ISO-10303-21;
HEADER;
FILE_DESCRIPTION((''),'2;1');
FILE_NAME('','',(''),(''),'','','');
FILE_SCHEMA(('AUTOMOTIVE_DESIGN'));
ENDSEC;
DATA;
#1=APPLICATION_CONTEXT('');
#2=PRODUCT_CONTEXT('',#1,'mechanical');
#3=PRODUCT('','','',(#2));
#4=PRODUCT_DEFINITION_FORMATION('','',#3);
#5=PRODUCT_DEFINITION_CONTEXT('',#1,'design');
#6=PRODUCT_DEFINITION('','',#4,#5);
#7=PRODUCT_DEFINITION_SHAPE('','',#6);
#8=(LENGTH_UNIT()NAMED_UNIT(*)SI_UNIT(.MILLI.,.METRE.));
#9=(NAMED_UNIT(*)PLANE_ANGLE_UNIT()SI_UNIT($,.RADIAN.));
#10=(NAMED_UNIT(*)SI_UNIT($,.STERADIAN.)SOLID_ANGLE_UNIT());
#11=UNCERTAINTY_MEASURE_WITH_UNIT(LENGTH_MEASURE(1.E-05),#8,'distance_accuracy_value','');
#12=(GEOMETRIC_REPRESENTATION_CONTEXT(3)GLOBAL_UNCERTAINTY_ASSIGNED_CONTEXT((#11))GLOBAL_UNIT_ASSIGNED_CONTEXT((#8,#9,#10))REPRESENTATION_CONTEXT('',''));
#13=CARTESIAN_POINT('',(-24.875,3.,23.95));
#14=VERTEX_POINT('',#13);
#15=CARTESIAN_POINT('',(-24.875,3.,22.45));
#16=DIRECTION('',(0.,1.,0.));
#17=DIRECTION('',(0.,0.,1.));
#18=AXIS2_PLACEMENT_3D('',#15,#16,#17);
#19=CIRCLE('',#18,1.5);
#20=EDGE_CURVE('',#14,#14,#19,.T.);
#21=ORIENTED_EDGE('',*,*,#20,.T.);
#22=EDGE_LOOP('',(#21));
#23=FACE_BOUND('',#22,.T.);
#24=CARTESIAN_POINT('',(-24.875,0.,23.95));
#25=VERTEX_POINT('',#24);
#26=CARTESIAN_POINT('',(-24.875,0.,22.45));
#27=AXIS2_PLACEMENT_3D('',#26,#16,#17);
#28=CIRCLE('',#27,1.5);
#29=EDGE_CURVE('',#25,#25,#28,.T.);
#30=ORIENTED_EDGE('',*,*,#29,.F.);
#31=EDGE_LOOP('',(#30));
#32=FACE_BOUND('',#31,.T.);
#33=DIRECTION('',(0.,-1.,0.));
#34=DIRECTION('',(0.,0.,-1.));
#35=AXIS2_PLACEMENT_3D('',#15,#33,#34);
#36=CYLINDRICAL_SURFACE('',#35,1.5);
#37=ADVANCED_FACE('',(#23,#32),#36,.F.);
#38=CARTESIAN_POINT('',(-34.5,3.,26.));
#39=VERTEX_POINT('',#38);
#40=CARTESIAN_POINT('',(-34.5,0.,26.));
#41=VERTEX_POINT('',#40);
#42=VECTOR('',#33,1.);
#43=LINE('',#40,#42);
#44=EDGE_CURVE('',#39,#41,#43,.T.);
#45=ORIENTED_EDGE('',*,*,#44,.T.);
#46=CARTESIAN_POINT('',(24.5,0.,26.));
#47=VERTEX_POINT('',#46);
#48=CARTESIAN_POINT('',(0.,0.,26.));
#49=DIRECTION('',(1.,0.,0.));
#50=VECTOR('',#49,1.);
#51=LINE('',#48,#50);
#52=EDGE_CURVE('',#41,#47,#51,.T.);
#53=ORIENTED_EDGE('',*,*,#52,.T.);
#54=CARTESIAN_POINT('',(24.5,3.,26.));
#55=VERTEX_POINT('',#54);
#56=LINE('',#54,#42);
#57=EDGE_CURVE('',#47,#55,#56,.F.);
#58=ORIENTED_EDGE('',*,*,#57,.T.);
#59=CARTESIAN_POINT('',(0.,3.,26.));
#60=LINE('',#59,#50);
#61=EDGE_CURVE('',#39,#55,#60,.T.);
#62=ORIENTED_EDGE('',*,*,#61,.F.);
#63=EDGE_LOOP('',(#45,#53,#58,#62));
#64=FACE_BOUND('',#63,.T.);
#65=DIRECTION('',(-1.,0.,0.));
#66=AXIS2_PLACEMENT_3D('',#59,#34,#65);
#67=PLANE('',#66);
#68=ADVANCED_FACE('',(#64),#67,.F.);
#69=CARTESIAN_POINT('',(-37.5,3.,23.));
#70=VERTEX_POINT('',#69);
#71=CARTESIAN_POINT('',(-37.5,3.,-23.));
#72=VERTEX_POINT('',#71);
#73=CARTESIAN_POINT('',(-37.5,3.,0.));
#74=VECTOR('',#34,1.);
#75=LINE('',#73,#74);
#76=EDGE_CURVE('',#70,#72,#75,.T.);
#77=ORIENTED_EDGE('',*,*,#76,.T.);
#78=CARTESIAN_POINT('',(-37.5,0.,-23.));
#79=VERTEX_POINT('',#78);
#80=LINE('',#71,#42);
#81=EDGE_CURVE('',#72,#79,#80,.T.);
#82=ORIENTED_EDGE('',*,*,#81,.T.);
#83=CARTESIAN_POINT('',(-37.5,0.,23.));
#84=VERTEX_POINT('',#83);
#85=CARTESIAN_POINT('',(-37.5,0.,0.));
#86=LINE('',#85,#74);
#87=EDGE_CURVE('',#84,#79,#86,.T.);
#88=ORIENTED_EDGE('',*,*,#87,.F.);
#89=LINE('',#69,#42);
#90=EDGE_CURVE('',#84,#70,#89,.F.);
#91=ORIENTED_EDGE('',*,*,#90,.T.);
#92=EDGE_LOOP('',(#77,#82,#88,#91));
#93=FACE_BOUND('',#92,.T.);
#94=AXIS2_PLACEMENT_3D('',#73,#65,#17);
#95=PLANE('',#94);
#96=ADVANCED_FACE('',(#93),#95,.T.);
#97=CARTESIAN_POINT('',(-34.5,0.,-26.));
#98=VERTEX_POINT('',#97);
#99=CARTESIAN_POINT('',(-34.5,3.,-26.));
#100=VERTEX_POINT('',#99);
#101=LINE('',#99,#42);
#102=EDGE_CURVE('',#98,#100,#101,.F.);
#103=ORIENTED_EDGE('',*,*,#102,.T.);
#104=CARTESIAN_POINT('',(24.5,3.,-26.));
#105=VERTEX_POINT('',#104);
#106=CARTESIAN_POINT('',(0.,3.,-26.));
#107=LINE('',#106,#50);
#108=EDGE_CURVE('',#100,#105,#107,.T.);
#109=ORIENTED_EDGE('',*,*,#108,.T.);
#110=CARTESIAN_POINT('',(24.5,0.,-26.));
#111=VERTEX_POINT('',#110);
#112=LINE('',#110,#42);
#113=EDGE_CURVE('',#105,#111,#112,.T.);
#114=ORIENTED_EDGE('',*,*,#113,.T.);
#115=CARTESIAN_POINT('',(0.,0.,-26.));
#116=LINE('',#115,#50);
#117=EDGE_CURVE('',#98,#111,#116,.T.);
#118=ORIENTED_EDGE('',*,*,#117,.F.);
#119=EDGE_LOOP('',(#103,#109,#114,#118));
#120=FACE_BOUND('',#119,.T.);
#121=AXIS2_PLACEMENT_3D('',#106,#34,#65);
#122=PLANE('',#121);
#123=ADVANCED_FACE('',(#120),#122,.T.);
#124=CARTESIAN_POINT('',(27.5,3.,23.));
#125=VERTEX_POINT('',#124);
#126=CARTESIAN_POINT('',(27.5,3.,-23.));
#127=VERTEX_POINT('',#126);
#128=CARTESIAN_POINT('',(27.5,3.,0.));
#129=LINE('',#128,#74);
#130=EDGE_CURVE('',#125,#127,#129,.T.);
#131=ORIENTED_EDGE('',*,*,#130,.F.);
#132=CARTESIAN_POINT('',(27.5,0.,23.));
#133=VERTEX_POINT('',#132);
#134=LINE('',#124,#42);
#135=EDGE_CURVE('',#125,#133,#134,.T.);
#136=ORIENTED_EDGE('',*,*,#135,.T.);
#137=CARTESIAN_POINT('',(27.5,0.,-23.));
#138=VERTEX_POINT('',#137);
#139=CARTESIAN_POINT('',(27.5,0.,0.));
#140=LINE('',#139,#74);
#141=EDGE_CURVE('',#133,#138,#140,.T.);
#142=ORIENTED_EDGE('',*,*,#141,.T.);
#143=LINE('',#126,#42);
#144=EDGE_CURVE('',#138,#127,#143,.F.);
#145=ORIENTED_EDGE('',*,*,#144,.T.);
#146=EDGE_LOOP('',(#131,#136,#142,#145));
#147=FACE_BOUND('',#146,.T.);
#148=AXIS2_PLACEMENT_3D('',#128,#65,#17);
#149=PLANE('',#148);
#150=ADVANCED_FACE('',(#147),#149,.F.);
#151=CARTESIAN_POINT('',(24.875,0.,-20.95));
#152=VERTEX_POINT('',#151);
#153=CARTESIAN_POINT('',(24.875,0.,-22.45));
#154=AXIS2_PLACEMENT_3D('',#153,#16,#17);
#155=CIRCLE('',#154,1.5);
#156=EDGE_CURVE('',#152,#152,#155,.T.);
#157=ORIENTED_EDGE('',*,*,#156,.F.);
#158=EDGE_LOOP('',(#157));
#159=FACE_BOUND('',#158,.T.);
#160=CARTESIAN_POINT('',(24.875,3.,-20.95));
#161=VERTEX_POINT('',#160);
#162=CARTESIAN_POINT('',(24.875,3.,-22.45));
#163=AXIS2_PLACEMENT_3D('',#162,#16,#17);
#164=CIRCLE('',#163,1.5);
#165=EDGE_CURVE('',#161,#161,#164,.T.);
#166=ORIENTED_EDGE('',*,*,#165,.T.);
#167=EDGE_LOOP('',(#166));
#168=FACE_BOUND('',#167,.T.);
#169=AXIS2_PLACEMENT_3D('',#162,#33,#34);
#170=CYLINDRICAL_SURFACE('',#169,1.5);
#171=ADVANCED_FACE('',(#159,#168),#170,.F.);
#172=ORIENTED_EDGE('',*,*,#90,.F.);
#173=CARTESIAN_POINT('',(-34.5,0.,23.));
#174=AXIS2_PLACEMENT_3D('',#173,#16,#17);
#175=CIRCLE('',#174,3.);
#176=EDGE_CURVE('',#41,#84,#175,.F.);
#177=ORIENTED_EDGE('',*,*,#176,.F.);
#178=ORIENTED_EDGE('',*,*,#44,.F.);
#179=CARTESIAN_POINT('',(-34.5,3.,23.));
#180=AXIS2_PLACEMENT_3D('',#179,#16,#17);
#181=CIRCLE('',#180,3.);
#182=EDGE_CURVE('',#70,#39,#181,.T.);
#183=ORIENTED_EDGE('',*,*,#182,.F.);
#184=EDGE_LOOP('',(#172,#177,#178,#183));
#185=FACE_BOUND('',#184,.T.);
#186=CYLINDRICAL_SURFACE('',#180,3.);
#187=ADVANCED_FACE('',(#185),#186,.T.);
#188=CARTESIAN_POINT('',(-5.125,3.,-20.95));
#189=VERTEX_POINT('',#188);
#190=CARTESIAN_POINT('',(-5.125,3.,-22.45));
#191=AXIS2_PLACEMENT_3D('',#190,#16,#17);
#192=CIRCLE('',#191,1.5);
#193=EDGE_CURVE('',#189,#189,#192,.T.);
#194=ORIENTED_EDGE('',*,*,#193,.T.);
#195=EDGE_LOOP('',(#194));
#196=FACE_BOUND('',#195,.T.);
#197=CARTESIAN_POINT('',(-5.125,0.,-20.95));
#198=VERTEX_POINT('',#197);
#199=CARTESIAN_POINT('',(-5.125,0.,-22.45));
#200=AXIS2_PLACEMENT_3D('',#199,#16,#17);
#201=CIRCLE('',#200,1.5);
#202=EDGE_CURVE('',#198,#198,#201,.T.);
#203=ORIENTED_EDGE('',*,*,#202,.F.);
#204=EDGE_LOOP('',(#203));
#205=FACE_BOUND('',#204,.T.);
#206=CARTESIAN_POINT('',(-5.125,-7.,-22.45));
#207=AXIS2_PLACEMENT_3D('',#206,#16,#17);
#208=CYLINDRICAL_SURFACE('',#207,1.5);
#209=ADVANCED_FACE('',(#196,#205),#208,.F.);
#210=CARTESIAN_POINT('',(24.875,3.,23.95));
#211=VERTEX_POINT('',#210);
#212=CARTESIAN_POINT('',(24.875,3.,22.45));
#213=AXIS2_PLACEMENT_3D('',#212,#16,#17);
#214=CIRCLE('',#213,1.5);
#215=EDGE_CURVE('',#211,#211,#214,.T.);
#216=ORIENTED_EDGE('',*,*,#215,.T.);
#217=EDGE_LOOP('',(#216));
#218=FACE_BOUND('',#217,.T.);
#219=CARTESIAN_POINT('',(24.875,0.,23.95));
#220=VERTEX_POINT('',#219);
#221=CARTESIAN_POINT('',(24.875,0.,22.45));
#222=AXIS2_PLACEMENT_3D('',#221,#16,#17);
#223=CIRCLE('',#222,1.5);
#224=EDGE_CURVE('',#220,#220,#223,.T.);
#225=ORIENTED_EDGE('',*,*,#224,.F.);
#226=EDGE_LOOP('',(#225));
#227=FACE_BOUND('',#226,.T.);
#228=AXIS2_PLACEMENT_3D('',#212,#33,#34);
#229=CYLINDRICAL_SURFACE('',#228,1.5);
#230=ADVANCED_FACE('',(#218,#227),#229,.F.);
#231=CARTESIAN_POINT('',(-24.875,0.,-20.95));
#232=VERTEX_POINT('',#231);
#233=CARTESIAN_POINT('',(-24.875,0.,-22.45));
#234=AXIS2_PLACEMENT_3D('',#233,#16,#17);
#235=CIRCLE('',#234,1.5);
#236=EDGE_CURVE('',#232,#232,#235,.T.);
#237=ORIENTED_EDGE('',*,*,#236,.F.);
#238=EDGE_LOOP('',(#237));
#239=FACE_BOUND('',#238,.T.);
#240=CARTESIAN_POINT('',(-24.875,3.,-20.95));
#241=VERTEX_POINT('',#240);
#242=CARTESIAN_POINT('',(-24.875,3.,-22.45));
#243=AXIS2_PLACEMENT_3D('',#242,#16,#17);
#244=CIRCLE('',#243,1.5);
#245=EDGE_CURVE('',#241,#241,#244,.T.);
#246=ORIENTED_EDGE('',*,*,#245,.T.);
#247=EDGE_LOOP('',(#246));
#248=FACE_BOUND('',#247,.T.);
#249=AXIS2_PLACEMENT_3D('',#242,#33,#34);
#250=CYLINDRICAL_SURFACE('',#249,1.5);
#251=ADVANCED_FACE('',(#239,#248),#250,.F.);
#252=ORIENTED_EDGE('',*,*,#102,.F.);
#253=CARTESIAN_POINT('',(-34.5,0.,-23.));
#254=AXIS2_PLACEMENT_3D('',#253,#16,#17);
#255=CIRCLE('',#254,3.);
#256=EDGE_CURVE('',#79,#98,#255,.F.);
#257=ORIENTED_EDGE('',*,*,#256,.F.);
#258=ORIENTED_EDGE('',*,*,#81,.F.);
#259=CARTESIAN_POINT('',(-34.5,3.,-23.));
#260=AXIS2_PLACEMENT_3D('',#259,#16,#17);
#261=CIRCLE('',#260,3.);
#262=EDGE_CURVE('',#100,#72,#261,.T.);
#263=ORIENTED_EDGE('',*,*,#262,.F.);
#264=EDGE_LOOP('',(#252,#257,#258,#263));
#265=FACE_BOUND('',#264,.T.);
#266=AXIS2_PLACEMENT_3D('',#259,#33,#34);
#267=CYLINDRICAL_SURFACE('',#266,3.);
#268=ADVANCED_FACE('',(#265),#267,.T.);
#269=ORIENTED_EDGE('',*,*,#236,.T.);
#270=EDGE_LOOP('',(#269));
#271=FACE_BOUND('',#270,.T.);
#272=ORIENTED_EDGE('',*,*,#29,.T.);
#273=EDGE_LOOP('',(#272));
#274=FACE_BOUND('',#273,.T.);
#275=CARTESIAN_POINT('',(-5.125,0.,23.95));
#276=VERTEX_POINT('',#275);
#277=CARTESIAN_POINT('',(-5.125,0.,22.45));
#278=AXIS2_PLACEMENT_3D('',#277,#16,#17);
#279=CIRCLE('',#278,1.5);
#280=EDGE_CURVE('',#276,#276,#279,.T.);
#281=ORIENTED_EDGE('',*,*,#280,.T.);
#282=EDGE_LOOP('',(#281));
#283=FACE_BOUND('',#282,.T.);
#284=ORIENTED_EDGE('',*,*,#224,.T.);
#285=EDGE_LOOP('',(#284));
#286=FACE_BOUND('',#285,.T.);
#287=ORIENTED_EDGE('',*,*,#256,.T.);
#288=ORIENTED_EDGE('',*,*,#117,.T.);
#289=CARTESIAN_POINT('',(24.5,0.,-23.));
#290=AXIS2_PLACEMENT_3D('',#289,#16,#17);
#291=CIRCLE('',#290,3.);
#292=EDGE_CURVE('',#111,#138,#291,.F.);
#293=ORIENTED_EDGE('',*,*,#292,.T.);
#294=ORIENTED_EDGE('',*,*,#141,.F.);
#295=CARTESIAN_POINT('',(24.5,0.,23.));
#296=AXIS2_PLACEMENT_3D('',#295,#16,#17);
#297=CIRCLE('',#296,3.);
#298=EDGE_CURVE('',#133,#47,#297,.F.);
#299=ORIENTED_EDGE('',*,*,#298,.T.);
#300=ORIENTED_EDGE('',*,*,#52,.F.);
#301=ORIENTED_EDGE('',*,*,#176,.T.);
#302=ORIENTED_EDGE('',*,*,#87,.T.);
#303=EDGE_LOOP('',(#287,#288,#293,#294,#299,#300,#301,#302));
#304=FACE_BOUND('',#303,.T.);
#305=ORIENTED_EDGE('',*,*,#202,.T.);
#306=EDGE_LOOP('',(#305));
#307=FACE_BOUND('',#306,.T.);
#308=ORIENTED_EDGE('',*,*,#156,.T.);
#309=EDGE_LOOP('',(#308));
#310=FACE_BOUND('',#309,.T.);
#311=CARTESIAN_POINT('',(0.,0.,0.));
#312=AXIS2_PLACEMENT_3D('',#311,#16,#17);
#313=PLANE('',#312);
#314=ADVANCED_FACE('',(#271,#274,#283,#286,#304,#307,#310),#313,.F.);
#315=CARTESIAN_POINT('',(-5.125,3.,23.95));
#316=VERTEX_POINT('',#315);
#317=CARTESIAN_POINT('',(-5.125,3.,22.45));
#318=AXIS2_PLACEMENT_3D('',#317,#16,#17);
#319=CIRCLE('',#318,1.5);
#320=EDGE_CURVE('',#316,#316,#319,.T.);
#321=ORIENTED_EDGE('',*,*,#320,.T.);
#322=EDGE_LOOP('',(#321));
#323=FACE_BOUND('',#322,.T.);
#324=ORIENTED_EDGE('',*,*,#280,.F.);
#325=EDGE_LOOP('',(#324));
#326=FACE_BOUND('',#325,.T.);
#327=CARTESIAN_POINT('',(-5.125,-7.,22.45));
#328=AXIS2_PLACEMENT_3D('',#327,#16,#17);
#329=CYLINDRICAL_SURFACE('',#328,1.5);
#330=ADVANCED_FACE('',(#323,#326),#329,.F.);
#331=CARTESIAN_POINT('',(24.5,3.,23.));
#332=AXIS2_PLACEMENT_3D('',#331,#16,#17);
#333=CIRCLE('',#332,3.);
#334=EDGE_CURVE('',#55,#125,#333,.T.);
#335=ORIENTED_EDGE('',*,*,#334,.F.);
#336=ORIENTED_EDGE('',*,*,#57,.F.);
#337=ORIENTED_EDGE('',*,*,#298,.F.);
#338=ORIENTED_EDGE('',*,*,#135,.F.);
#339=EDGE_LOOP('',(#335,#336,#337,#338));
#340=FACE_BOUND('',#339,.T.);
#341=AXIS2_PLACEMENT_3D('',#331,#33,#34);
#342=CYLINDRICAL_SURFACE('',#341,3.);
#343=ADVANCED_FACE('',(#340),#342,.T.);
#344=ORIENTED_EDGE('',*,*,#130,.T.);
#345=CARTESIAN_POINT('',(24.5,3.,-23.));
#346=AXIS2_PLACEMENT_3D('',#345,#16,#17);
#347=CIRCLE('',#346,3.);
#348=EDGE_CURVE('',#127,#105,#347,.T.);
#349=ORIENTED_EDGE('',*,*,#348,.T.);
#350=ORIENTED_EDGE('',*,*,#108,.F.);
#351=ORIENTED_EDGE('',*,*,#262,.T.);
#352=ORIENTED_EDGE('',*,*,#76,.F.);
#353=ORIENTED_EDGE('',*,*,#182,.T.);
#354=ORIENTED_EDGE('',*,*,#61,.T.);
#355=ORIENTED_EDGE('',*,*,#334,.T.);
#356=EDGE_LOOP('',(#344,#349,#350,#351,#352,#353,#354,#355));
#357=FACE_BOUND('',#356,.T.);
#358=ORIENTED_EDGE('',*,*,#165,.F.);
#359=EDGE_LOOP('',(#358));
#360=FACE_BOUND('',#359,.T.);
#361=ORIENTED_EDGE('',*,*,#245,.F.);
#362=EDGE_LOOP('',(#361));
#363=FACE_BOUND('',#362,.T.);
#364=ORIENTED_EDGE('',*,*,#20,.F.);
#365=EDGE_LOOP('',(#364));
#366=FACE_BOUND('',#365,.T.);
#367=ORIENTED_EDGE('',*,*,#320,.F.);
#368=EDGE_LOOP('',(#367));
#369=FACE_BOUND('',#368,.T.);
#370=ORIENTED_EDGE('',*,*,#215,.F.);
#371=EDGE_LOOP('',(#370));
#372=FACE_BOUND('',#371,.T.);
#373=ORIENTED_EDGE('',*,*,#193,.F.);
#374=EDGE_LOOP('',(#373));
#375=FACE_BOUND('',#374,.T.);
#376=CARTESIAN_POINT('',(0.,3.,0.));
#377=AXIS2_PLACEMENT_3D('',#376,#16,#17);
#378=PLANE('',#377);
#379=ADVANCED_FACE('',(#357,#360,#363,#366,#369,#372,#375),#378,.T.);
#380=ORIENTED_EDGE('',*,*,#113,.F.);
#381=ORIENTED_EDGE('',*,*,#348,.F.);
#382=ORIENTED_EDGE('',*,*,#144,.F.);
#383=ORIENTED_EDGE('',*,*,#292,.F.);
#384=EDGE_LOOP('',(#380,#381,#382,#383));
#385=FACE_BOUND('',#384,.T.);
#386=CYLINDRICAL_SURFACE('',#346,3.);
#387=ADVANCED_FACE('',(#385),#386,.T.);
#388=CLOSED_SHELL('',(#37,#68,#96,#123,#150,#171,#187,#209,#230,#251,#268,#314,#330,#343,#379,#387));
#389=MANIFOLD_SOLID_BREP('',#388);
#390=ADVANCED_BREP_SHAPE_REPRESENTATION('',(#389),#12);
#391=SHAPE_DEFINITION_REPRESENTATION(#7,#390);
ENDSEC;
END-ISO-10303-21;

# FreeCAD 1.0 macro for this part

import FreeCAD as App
import Part
import Sketcher

V = App.Vector
Q = App.Units.Quantity


def edges_at(feature, points):
    """Names of the edges that pass closest to the given points."""
    edges = feature.Shape.Edges
    near = lambda p: min(range(len(edges)), key=lambda i: edges[i].distToShape(Part.Vertex(*p))[0])
    return sorted({f"Edge{near(p) + 1}" for p in points})

doc = App.newDocument("Part")
body = doc.addObject("PartDesign::Body", "Body")

sketch1 = body.newObject("Sketcher::SketchObject", "Sketch")
sketch1.AttachmentSupport = (doc.getObject("XZ_Plane"), [""])
sketch1.MapMode = "FlatFace"
sketch1.addGeometry([
    Part.LineSegment(V(-37.5, -26, 0), V(-37.5, 26, 0)),
    Part.LineSegment(V(-37.5, 26, 0), V(27.5, 26, 0)),
    Part.LineSegment(V(27.5, 26, 0), V(27.5, -26, 0)),
    Part.LineSegment(V(27.5, -26, 0), V(-37.5, -26, 0)),
    Part.Circle(V(-24.9, 22.4, 0), V(0, 0, 1), 1.5),
    Part.Circle(V(24.9, 22.4, 0), V(0, 0, 1), 1.5),
    Part.Circle(V(-24.9, -22.4, 0), V(0, 0, 1), 1.5),
    Part.Circle(V(24.9, -22.4, 0), V(0, 0, 1), 1.5),
], False)
sketch1.addConstraint([
    Sketcher.Constraint("Coincident", 0, 2, 1, 1),
    Sketcher.Constraint("Coincident", 1, 2, 2, 1),
    Sketcher.Constraint("Coincident", 2, 2, 3, 1),
    Sketcher.Constraint("Coincident", 3, 2, 0, 1),
    Sketcher.Constraint("Vertical", 0),
    Sketcher.Constraint("Horizontal", 1),
    Sketcher.Constraint("Vertical", 2),
    Sketcher.Constraint("Horizontal", 3),
    Sketcher.Constraint("Equal", 4, 5),
    Sketcher.Constraint("Equal", 5, 6),
    Sketcher.Constraint("Equal", 6, 7),
    Sketcher.Constraint("Symmetric", 5, 3, 6, 3, -1, 1),
    Sketcher.Constraint("Symmetric", 4, 3, 7, 3, -1, 1),
    Sketcher.Constraint("Symmetric", 4, 3, 5, 3, -2),
    Sketcher.Constraint("Diameter", 4, Q("3 mm")),
    Sketcher.Constraint("DistanceX", 1, 1, 1, 2, Q("65 mm")),
    Sketcher.Constraint("DistanceY", 0, 1, 0, 2, Q("52 mm")),
    Sketcher.Constraint("DistanceY", -1, 1, 0, 2, Q("26 mm")),
    Sketcher.Constraint("DistanceX", 0, 2, -1, 1, Q("37.5 mm")),
    Sketcher.Constraint("DistanceY", 6, 3, 4, 3, Q("44.9 mm")),
    Sketcher.Constraint("DistanceX", 4, 3, 5, 3, Q("49.75 mm")),
])
pad1 = body.newObject("PartDesign::Pad", "Pad")
pad1.Profile = sketch1
pad1.Length = 3
pad1.Reversed = True
doc.recompute()

fillet = body.newObject("PartDesign::Fillet", "Fillet")
fillet.Base = (pad1, edges_at(pad1, [
    (-37.5, 1.5, 26),
    (-37.5, 1.5, -26),
    (27.5, 1.5, -26),
    (27.5, 1.5, 26),
]))
fillet.Radius = 3

sketch2 = body.newObject("Sketcher::SketchObject", "Sketch001")
sketch2.AttachmentSupport = (doc.getObject("XZ_Plane"), [""])
sketch2.MapMode = "FlatFace"
sketch2.AttachmentOffset = App.Placement(V(0, 0, 7), App.Rotation())
sketch2.addGeometry([
    Part.Circle(V(24.9, -22.4, 0), V(0, 0, 1), 1.5),
    Part.Circle(V(-5.1, -22.4, 0), V(0, 0, 1), 1.5),
    Part.Circle(V(-5.1, 22.4, 0), V(0, 0, 1), 1.5),
    Part.Circle(V(24.9, 22.4, 0), V(0, 0, 1), 1.5),
], False)
sketch2.addConstraint([
    Sketcher.Constraint("Equal", 0, 1),
    Sketcher.Constraint("Equal", 1, 2),
    Sketcher.Constraint("Equal", 2, 3),
    Sketcher.Constraint("Symmetric", 1, 3, 2, 3, -1),
    Sketcher.Constraint("Symmetric", 0, 3, 3, 3, -1),
    Sketcher.Constraint("Horizontal", 0, 3, 1, 3),
    Sketcher.Constraint("Diameter", 0, Q("3 mm")),
    Sketcher.Constraint("DistanceX", 1, 3, 0, 3, Q("30 mm")),
    Sketcher.Constraint("DistanceY", 1, 3, 2, 3, Q("44.9 mm")),
    Sketcher.Constraint("DistanceX", -1, 1, 0, 3, Q("24.875 mm")),
])
pocket1 = body.newObject("PartDesign::Pocket", "Pocket")
pocket1.Profile = sketch2
pocket1.Length = 10

doc.recompute()
